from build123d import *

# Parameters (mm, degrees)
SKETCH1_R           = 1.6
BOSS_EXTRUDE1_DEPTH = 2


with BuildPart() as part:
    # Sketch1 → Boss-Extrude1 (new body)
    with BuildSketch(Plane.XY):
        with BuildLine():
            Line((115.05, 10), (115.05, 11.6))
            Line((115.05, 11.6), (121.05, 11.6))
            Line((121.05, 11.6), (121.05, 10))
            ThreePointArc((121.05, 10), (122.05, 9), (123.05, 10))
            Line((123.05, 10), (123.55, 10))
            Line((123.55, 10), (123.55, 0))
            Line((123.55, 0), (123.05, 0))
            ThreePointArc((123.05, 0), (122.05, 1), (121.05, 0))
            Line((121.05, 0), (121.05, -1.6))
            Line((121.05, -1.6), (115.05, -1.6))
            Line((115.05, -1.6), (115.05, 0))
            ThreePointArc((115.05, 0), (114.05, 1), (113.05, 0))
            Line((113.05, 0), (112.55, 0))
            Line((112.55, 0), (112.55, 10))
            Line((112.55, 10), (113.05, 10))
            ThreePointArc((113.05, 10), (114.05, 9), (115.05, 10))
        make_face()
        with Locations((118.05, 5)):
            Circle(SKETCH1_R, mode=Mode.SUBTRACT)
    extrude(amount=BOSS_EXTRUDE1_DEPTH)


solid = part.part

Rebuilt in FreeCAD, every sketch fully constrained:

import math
import FreeCAD as App
import Part
import Sketcher
from FreeCAD import Vector
Q = App.Units.Quantity

doc = App.newDocument("Part")
body = doc.addObject("PartDesign::Body", "Body")

# Sketch on XY plane
sketch1 = body.newObject("Sketcher::SketchObject", "Sketch")
sketch1.AttachmentSupport = (doc.getObject("XY_Plane"), [""])
sketch1.MapMode = "FlatFace"
sketch1.addGeometry([
    Part.LineSegment(Vector(115.05, 11.6, 0), Vector(115.05, 10, 0)),  # 0
    Part.ArcOfCircle(Part.Circle(Vector(114.05, 10, 0), Vector(0, 0, 1), 1), math.radians(180), math.radians(360)),  # 1
    Part.LineSegment(Vector(113.05, 10, 0), Vector(112.55, 10, 0)),  # 2
    Part.LineSegment(Vector(112.55, 10, 0), Vector(112.55, 0, 0)),  # 3
    Part.LineSegment(Vector(112.55, 0, 0), Vector(113.05, 0, 0)),  # 4
    Part.ArcOfCircle(Part.Circle(Vector(114.05, 0, 0), Vector(0, 0, 1), 1), math.radians(0), math.radians(180)),  # 5
    Part.LineSegment(Vector(115.05, 0, 0), Vector(115.05, -1.6, 0)),  # 6
    Part.LineSegment(Vector(115.05, -1.6, 0), Vector(121.05, -1.6, 0)),  # 7
    Part.LineSegment(Vector(121.05, -1.6, 0), Vector(121.05, 0, 0)),  # 8
    Part.ArcOfCircle(Part.Circle(Vector(122.05, 0, 0), Vector(0, 0, 1), 1), math.radians(0), math.radians(180)),  # 9
    Part.LineSegment(Vector(123.05, 0, 0), Vector(123.55, 0, 0)),  # 10
    Part.LineSegment(Vector(123.55, 0, 0), Vector(123.55, 10, 0)),  # 11
    Part.LineSegment(Vector(123.55, 10, 0), Vector(123.05, 10, 0)),  # 12
    Part.ArcOfCircle(Part.Circle(Vector(122.05, 10, 0), Vector(0, 0, 1), 1), math.radians(180), math.radians(360)),  # 13
    Part.LineSegment(Vector(121.05, 10, 0), Vector(121.05, 11.6, 0)),  # 14
    Part.LineSegment(Vector(121.05, 11.6, 0), Vector(115.05, 11.6, 0)),  # 15
    Part.Circle(Vector(118.05, 5, 0), Vector(0, 0, 1), 1.6),  # 16
], False)
sketch1.addConstraint([
    Sketcher.Constraint("Tangent", 0, 2, 1, 2),
    Sketcher.Constraint("Coincident", 1, 1, 2, 1),
    Sketcher.Constraint("Coincident", 2, 2, 3, 1),
    Sketcher.Constraint("Coincident", 3, 2, 4, 1),
    Sketcher.Constraint("Coincident", 4, 2, 5, 2),
    Sketcher.Constraint("Tangent", 5, 1, 6, 1),
    Sketcher.Constraint("Coincident", 6, 2, 7, 1),
    Sketcher.Constraint("Coincident", 7, 2, 8, 1),
    Sketcher.Constraint("Tangent", 8, 2, 9, 2),
    Sketcher.Constraint("Coincident", 9, 1, 10, 1),
    Sketcher.Constraint("Coincident", 10, 2, 11, 1),
    Sketcher.Constraint("Coincident", 11, 2, 12, 1),
    Sketcher.Constraint("Coincident", 12, 2, 13, 2),
    Sketcher.Constraint("Tangent", 13, 1, 14, 1),
    Sketcher.Constraint("Coincident", 14, 2, 15, 1),
    Sketcher.Constraint("Coincident", 15, 2, 0, 1),
    Sketcher.Constraint("Vertical", 0),
    Sketcher.Constraint("Horizontal", 2),
    Sketcher.Constraint("Vertical", 3),
    Sketcher.Constraint("Horizontal", 4),
    Sketcher.Constraint("Vertical", 6),
    Sketcher.Constraint("Horizontal", 7),
    Sketcher.Constraint("Vertical", 8),
    Sketcher.Constraint("Horizontal", 10),
    Sketcher.Constraint("Vertical", 11),
    Sketcher.Constraint("Horizontal", 12),
    Sketcher.Constraint("Vertical", 14),
    Sketcher.Constraint("Horizontal", 15),
    Sketcher.Constraint("Equal", 1, 5),
    Sketcher.Constraint("Equal", 5, 9),
    Sketcher.Constraint("Equal", 9, 13),
    Sketcher.Constraint("PointOnObject", 5, 3, -1),
    Sketcher.Constraint("PointOnObject", 9, 3, -1),
    Sketcher.Constraint("PointOnObject", 3, 2, -1),
    Sketcher.Constraint("PointOnObject", 9, 1, -1),
    Sketcher.Constraint("Horizontal", 1, 3, 13, 3),
    Sketcher.Constraint("Horizontal", 0, 2, 1, 1),
    Sketcher.Constraint("Horizontal", 2, 2, 11, 2),
    Sketcher.Constraint("Vertical", 1, 3, 5, 3),
    Sketcher.Constraint("Vertical", 9, 3, 13, 3),
    Sketcher.Constraint("Equal", 4, 10),
    Sketcher.Constraint("Equal", 0, 6),
    Sketcher.Constraint("Radius", 1, Q("1 mm")),
    Sketcher.Constraint("Diameter", 16, Q("3.2 mm")),
    Sketcher.Constraint("DistanceX", 7, 1, 7, 2, Q("6 mm")),
    Sketcher.Constraint("DistanceY", 3, 2, 3, 1, Q("10 mm")),
    Sketcher.Constraint("DistanceX", 2, 2, 2, 1, Q("0.5 mm")),
    Sketcher.Constraint("DistanceY", 0, 2, 0, 1, Q("1.6 mm")),
    Sketcher.Constraint("DistanceY", -1, 1, 16, 3, Q("5 mm")),
    Sketcher.Constraint("DistanceX", 1, 3, 16, 3, Q("4 mm")),
    Sketcher.Constraint("DistanceX", -1, 1, 1, 3, Q("114.05 mm")),
])
pad1 = body.newObject("PartDesign::Pad", "Pad")
pad1.Profile = sketch1
pad1.Length = 2

doc.recompute()
